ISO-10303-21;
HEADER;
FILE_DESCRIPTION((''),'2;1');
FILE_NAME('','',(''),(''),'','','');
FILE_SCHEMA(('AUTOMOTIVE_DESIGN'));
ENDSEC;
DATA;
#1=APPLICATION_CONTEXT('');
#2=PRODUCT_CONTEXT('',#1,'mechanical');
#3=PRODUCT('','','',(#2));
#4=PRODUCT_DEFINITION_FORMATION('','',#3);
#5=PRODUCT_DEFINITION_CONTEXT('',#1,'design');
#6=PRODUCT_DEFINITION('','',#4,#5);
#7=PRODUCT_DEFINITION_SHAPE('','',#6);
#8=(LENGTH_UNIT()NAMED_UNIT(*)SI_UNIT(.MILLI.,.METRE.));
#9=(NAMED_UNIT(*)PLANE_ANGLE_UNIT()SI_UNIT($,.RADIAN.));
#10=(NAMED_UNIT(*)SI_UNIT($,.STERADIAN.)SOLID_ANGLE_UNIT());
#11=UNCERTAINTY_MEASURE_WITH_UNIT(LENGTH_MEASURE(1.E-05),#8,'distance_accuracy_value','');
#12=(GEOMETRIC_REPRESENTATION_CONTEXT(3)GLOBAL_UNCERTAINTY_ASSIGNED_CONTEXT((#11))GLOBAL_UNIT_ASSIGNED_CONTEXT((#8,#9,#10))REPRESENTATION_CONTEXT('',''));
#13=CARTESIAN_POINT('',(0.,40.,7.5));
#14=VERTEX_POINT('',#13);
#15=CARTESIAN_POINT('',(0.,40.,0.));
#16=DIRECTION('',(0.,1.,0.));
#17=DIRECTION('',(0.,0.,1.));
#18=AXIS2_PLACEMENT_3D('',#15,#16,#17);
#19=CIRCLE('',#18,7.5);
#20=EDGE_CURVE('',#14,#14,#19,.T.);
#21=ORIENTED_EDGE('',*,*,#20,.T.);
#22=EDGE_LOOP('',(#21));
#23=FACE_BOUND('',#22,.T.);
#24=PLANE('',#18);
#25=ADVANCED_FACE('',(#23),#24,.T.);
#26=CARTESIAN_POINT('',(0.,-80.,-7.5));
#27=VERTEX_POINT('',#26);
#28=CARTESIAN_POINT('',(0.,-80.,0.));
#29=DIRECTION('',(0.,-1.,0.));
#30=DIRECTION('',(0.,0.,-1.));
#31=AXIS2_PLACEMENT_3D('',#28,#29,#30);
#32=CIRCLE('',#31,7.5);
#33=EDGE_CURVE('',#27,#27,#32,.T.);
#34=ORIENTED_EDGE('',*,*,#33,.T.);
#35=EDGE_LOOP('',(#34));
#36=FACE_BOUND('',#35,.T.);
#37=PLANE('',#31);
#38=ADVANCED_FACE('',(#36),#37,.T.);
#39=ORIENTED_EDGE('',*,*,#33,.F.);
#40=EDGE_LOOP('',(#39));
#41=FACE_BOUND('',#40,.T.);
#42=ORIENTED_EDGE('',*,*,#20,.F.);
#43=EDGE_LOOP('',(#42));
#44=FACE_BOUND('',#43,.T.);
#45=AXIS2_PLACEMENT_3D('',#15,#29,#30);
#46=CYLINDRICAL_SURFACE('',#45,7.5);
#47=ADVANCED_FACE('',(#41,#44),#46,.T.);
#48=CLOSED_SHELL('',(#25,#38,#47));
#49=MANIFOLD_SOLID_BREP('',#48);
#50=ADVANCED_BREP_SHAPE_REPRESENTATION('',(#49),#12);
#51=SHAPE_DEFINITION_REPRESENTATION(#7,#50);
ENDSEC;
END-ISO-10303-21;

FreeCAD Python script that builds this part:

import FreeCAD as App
import Part
import Sketcher
from FreeCAD import Vector

doc = App.newDocument("Part")
body = doc.addObject("PartDesign::Body", "Body")

sketch1 = doc.addObject("Sketcher::SketchObject", "Sketch")
body.addObject(sketch1)
sketch1.AttachmentSupport = (doc.XZ_Plane, [""])
sketch1.MapMode = "FlatFace"
sketch1.addGeometry(Part.Circle(Vector(0, 0, 0), Vector(0, 0, 1), 7.5), False)
sketch1.addConstraint(Sketcher.Constraint("Coincident", 0, 3, -1, 1))
sketch1.addConstraint(Sketcher.Constraint("Diameter", 0, 15.0))
pad1 = doc.addObject("PartDesign::Pad", "Pad")
body.addObject(pad1)
pad1.Profile = sketch1
pad1.Length = 40
pad1.Reversed = True

sketch2 = doc.addObject("Sketcher::SketchObject", "Sketch001")
body.addObject(sketch2)
sketch2.AttachmentSupport = (doc.XZ_Plane, [""])
sketch2.MapMode = "FlatFace"
sketch2.AttachmentOffset = App.Placement(Vector(0, 0, 80), App.Rotation())
sketch2.addGeometry(Part.Circle(Vector(0, 0, 0), Vector(0, 0, 1), 7.5), False)
sketch2.addConstraint(Sketcher.Constraint("Coincident", 0, 3, -1, 1))
sketch2.addConstraint(Sketcher.Constraint("Diameter", 0, 15.0))
pad2 = doc.addObject("PartDesign::Pad", "Pad001")
body.addObject(pad2)
pad2.Profile = sketch2
pad2.Length = 80
pad2.Reversed = True

doc.recompute()
